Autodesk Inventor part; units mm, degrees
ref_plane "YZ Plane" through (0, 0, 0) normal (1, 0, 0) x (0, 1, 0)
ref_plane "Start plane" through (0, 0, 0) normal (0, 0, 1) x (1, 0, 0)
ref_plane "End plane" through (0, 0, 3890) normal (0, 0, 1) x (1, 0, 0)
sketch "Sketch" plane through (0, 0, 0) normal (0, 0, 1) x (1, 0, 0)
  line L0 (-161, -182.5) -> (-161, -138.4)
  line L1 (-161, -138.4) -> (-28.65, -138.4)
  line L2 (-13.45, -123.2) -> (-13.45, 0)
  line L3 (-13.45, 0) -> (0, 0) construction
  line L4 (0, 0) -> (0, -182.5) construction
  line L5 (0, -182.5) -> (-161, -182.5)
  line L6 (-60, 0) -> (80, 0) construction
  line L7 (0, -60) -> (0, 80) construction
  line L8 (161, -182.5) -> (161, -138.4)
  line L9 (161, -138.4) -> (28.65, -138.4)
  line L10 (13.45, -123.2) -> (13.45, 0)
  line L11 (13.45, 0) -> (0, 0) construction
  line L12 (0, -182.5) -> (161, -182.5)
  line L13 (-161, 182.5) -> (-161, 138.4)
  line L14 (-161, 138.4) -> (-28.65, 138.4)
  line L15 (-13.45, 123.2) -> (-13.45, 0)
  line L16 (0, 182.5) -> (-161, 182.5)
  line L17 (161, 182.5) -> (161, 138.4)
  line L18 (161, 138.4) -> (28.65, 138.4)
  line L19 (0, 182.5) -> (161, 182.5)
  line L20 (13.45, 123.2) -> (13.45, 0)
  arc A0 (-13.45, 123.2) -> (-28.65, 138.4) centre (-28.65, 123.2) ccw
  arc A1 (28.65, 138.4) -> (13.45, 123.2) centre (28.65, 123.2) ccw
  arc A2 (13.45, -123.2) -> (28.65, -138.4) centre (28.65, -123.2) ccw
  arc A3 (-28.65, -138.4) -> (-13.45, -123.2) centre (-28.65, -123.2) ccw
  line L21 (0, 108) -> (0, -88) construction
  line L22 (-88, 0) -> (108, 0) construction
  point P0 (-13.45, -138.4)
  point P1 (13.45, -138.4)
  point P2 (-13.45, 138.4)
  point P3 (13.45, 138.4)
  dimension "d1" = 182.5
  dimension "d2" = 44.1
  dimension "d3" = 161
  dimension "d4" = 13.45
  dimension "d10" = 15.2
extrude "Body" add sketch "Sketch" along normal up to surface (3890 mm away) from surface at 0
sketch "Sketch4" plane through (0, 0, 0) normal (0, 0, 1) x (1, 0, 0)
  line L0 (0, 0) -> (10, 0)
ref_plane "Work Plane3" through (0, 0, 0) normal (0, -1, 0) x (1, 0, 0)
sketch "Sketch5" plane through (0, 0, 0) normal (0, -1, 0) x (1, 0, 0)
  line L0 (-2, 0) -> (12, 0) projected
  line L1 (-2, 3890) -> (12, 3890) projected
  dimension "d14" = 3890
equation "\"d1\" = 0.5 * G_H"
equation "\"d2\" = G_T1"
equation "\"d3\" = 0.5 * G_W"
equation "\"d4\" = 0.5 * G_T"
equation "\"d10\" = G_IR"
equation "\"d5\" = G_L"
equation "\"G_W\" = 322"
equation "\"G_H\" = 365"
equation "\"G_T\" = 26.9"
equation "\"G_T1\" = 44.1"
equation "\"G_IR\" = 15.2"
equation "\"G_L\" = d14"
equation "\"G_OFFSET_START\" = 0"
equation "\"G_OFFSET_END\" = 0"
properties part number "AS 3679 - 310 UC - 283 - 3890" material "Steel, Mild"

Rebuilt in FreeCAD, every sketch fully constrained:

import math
import FreeCAD as App
import Part
import Sketcher
from FreeCAD import Vector
Q = App.Units.Quantity

doc = App.newDocument("Part")
params = doc.addObject("Spreadsheet::Sheet", "Params")
for row, (alias, value) in enumerate([
    ("sketch1_radius", "15.2 mm"),
    ("sketch1_height", "44.1 mm"),
    ("pad1_length", "3890 mm"),
], start=1):
    params.set(f"A{row}", alias)
    params.set(f"B{row}", "=" + value)
    params.setAlias(f"B{row}", alias)

body = doc.addObject("PartDesign::Body", "Body")

# Sketch on XY plane
sketch1 = body.newObject("Sketcher::SketchObject", "Sketch")
sketch1.AttachmentSupport = (doc.getObject("XY_Plane"), [""])
sketch1.MapMode = "FlatFace"
sketch1.addGeometry(Part.LineSegment(Vector(-161, -138.4, 0), Vector(-161, -182.5, 0)), False)
sketch1.addGeometry(Part.LineSegment(Vector(-161, -182.5, 0), Vector(161, -182.5, 0)), False)
sketch1.addGeometry(Part.LineSegment(Vector(161, -182.5, 0), Vector(161, -138.4, 0)), False)
sketch1.addGeometry(Part.LineSegment(Vector(161, -138.4, 0), Vector(28.65, -138.4, 0)), False)
sketch1.addGeometry(Part.ArcOfCircle(Part.Circle(Vector(28.65, -123.2, 0), Vector(0, 0, 1), 15.2), math.radians(180), math.radians(270)), False)
sketch1.addGeometry(Part.LineSegment(Vector(13.45, -123.2, 0), Vector(13.45, 123.2, 0)), False)
sketch1.addGeometry(Part.ArcOfCircle(Part.Circle(Vector(28.65, 123.2, 0), Vector(0, 0, 1), 15.2), math.radians(90), math.radians(180)), False)
sketch1.addGeometry(Part.LineSegment(Vector(28.65, 138.4, 0), Vector(161, 138.4, 0)), False)
sketch1.addGeometry(Part.LineSegment(Vector(161, 138.4, 0), Vector(161, 182.5, 0)), False)
sketch1.addGeometry(Part.LineSegment(Vector(161, 182.5, 0), Vector(-161, 182.5, 0)), False)
sketch1.addGeometry(Part.LineSegment(Vector(-161, 182.5, 0), Vector(-161, 138.4, 0)), False)
sketch1.addGeometry(Part.LineSegment(Vector(-161, 138.4, 0), Vector(-28.65, 138.4, 0)), False)
sketch1.addGeometry(Part.ArcOfCircle(Part.Circle(Vector(-28.65, 123.2, 0), Vector(0, 0, 1), 15.2), math.radians(0), math.radians(90)), False)
sketch1.addGeometry(Part.LineSegment(Vector(-13.45, 123.2, 0), Vector(-13.45, -123.2, 0)), False)
sketch1.addGeometry(Part.ArcOfCircle(Part.Circle(Vector(-28.65, -123.2, 0), Vector(0, 0, 1), 15.2), math.radians(-90), math.radians(0)), False)
sketch1.addGeometry(Part.LineSegment(Vector(-28.65, -138.4, 0), Vector(-161, -138.4, 0)), False)
sketch1.addConstraint(Sketcher.Constraint("Coincident", 0, 2, 1, 1))
sketch1.addConstraint(Sketcher.Constraint("Coincident", 1, 2, 2, 1))
sketch1.addConstraint(Sketcher.Constraint("Coincident", 2, 2, 3, 1))
sketch1.addConstraint(Sketcher.Constraint("Tangent", 3, 2, 4, 2))
sketch1.addConstraint(Sketcher.Constraint("Tangent", 4, 1, 5, 1))
sketch1.addConstraint(Sketcher.Constraint("Tangent", 5, 2, 6, 2))
sketch1.addConstraint(Sketcher.Constraint("Tangent", 6, 1, 7, 1))
sketch1.addConstraint(Sketcher.Constraint("Coincident", 7, 2, 8, 1))
sketch1.addConstraint(Sketcher.Constraint("Coincident", 8, 2, 9, 1))
sketch1.addConstraint(Sketcher.Constraint("Coincident", 9, 2, 10, 1))
sketch1.addConstraint(Sketcher.Constraint("Coincident", 10, 2, 11, 1))
sketch1.addConstraint(Sketcher.Constraint("Tangent", 11, 2, 12, 2))
sketch1.addConstraint(Sketcher.Constraint("Tangent", 12, 1, 13, 1))
sketch1.addConstraint(Sketcher.Constraint("Tangent", 13, 2, 14, 2))
sketch1.addConstraint(Sketcher.Constraint("Tangent", 14, 1, 15, 1))
sketch1.addConstraint(Sketcher.Constraint("Coincident", 15, 2, 0, 1))
sketch1.addConstraint(Sketcher.Constraint("Vertical", 0))
sketch1.addConstraint(Sketcher.Constraint("Horizontal", 1))
sketch1.addConstraint(Sketcher.Constraint("Vertical", 2))
sketch1.addConstraint(Sketcher.Constraint("Horizontal", 3))
sketch1.addConstraint(Sketcher.Constraint("Vertical", 5))
sketch1.addConstraint(Sketcher.Constraint("Horizontal", 7))
sketch1.addConstraint(Sketcher.Constraint("Vertical", 8))
sketch1.addConstraint(Sketcher.Constraint("Horizontal", 9))
sketch1.addConstraint(Sketcher.Constraint("Vertical", 10))
sketch1.addConstraint(Sketcher.Constraint("Horizontal", 11))
sketch1.addConstraint(Sketcher.Constraint("Vertical", 13))
sketch1.addConstraint(Sketcher.Constraint("Horizontal", 15))
sketch1.addConstraint(Sketcher.Constraint("Equal", 4, 6))
sketch1.addConstraint(Sketcher.Constraint("Equal", 6, 12))
sketch1.addConstraint(Sketcher.Constraint("Equal", 12, 14))
sketch1.addConstraint(Sketcher.Constraint("Symmetric", 4, 3, 12, 3, -1, 1))
sketch1.addConstraint(Sketcher.Constraint("Symmetric", 0, 2, 8, 2, -1, 1))
sketch1.addConstraint(Sketcher.Constraint("Symmetric", 7, 2, 10, 2, -2))
sketch1.addConstraint(Sketcher.Constraint("Symmetric", 2, 2, 15, 2, -2))
sketch1.addConstraint(Sketcher.Constraint("Radius", 4, Q("15.2 mm")))
sketch1.addConstraint(Sketcher.Constraint("DistanceY", 0, 2, 0, 1, Q("44.1 mm")))
sketch1.addConstraint(Sketcher.Constraint("DistanceX", 0, 2, -1, 1, Q("161 mm")))
sketch1.addConstraint(Sketcher.Constraint("DistanceY", 0, 2, -1, 1, Q("182.5 mm")))
sketch1.addConstraint(Sketcher.Constraint("DistanceX", -1, 1, 4, 1, Q("13.45 mm")))
sketch1.setExpression("Constraints[35]", "Params.sketch1_radius")
sketch1.setExpression("Constraints[36]", "Params.sketch1_height")
pad1 = body.newObject("PartDesign::Pad", "Pad")
pad1.Profile = sketch1
pad1.setExpression("Length", "Params.pad1_length")

doc.recompute()
